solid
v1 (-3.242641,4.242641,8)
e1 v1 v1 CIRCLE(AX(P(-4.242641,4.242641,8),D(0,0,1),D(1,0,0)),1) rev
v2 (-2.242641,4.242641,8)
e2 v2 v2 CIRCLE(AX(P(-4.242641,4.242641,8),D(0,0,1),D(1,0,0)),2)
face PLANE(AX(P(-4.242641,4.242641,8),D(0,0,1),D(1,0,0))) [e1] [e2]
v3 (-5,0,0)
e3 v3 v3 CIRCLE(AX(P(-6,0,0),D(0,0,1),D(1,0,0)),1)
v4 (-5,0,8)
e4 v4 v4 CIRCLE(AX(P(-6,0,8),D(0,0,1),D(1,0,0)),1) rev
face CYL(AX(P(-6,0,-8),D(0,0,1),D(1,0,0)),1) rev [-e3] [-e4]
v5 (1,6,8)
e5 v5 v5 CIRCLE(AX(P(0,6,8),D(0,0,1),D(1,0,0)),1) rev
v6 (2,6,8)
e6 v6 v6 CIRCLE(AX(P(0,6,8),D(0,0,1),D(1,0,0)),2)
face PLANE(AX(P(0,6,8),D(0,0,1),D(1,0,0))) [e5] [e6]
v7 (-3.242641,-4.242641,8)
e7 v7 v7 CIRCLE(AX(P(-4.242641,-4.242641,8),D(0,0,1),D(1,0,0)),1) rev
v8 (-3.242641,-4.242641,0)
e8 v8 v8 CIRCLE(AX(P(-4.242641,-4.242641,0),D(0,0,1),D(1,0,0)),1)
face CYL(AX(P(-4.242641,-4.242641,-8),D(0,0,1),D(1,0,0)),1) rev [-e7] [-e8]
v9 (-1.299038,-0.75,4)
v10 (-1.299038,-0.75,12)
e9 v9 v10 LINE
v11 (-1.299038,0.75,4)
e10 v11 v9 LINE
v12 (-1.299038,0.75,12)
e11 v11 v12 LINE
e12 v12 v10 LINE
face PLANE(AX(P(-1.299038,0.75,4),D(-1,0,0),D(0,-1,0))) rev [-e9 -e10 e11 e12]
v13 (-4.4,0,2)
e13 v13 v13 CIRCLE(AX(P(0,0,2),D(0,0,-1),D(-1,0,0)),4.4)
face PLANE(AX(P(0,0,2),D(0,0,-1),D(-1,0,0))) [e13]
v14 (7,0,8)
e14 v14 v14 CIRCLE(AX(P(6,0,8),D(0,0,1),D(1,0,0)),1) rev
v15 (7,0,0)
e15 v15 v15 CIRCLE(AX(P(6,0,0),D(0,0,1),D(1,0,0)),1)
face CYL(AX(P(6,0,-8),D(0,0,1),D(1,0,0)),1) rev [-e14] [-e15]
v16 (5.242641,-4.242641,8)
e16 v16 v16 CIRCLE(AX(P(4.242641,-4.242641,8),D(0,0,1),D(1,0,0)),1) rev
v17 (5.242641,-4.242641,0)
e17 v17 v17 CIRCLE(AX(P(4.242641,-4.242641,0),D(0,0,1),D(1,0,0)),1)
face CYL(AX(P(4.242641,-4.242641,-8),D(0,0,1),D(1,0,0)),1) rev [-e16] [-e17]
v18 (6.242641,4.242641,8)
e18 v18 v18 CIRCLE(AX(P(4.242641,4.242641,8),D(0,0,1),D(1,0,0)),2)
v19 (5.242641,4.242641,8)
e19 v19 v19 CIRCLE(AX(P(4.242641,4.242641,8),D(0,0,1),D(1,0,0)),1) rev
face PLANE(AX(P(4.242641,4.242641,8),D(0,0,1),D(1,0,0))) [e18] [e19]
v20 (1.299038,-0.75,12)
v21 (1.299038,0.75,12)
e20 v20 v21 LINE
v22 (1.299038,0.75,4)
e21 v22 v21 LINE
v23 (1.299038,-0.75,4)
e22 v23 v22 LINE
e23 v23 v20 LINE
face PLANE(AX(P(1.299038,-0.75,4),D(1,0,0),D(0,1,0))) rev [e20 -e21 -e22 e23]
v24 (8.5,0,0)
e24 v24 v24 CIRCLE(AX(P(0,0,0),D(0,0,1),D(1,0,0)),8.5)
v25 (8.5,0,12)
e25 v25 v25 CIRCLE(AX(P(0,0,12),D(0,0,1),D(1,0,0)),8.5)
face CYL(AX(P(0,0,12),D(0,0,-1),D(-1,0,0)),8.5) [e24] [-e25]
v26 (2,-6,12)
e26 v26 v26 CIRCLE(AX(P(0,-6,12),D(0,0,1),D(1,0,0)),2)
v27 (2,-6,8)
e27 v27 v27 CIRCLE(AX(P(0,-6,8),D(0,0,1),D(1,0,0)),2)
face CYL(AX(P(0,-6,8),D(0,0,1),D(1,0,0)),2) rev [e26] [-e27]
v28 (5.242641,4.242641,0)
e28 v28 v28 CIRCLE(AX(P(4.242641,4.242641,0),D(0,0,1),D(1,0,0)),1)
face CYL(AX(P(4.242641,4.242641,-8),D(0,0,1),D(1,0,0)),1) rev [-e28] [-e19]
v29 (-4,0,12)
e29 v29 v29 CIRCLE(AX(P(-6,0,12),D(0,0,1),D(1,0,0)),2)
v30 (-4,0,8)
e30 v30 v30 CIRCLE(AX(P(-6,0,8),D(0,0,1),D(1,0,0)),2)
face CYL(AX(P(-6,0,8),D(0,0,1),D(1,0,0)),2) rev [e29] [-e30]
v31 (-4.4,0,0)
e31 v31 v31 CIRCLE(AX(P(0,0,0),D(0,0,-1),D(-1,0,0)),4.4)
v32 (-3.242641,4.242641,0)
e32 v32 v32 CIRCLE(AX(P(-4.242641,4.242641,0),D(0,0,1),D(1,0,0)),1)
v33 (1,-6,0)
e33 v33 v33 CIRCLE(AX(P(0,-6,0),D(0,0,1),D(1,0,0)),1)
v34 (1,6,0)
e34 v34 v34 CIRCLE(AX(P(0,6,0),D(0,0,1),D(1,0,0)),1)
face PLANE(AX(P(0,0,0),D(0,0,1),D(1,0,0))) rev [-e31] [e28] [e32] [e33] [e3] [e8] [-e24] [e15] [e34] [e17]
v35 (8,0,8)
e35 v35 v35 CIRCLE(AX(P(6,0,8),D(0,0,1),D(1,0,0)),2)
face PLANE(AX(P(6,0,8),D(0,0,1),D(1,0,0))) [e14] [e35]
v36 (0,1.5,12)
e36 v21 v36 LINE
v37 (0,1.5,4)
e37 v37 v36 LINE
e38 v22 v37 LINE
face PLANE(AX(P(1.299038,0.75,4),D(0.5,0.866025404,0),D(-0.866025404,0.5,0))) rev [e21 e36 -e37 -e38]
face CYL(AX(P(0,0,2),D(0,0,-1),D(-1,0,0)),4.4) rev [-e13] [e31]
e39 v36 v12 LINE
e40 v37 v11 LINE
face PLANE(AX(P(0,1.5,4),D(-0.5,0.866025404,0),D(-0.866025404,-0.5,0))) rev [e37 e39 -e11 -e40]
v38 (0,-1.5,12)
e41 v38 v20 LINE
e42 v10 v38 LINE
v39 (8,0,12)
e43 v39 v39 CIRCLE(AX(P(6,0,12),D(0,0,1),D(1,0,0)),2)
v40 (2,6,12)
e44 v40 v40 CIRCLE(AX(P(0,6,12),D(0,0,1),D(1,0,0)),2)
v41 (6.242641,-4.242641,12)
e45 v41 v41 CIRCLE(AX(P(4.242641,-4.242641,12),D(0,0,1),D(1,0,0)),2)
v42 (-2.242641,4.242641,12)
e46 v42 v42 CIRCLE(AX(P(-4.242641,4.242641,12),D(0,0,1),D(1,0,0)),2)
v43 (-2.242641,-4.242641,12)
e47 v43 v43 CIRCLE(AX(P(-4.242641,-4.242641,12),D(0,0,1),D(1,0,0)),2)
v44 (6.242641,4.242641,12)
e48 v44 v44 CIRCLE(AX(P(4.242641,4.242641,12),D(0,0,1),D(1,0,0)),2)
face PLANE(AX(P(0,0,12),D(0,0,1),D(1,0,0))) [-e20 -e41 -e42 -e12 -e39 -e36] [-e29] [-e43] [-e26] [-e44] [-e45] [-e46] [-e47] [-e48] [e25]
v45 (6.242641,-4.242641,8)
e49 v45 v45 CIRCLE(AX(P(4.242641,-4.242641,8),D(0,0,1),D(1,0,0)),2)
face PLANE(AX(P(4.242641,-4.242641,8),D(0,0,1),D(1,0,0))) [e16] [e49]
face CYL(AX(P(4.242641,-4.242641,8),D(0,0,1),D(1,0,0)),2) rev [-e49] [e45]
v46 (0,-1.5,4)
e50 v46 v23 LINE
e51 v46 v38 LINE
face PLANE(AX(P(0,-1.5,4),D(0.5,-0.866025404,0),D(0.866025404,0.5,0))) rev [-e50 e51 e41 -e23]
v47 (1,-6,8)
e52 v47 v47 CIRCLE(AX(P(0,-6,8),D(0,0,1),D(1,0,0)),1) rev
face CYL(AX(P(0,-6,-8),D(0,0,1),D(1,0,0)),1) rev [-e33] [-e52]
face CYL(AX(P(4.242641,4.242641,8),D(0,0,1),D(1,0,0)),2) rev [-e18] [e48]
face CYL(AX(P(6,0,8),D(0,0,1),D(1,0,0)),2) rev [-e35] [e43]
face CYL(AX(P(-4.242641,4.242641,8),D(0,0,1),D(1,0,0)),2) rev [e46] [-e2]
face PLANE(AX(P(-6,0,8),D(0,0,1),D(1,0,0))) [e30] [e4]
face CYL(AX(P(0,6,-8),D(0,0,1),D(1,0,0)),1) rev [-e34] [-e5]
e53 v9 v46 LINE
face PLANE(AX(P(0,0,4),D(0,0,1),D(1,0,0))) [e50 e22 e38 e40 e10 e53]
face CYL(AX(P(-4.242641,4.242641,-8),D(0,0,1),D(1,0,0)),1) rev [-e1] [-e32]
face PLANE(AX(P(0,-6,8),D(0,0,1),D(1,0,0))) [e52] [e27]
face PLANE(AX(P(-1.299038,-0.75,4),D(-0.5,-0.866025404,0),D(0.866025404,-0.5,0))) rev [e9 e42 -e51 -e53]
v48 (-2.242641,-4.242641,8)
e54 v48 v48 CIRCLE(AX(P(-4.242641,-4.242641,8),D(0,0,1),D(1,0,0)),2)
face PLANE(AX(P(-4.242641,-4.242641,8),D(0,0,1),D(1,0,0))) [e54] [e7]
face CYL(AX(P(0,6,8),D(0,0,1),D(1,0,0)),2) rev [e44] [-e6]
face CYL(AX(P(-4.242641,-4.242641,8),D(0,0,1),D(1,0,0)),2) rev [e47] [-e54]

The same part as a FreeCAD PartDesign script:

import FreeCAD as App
import Part
import Sketcher
Q = App.Units.Quantity

doc = App.newDocument("Part")
body = doc.addObject("PartDesign::Body", "Body")

# Sketch on XY plane
sketch1 = body.newObject("Sketcher::SketchObject", "Sketch")
sketch1.AttachmentSupport = (doc.getObject("XY_Plane"), [""])
sketch1.MapMode = "FlatFace"
sketch1.addGeometry(Part.Circle(App.Vector(0, 0, 0), App.Vector(0, 0, 1), 8), False)
sketch1.addConstraint([
    Sketcher.Constraint("Coincident", 0, 3, -1, 1),
    Sketcher.Constraint("Diameter", 0, Q("17 mm")),
])
pad1 = body.newObject("PartDesign::Pad", "Pad")
pad1.Profile = sketch1
pad1.Length = 12

# Sketch on XY plane
sketch2 = body.newObject("Sketcher::SketchObject", "Sketch001")
sketch2.AttachmentSupport = (doc.getObject("XY_Plane"), [""])
sketch2.MapMode = "FlatFace"
sketch2.AttachmentOffset = App.Placement(App.Vector(0, 0, 12), App.Rotation())
sketch2.addGeometry([
    Part.Circle(App.Vector(0, 6, 0), App.Vector(0, 0, 1), 1),  # 0
    Part.Circle(App.Vector(4.2, 4.2, 0), App.Vector(0, 0, 1), 1),  # 1
    Part.Circle(App.Vector(6, 0, 0), App.Vector(0, 0, 1), 1),  # 2
    Part.Circle(App.Vector(4.2, -4.2, 0), App.Vector(0, 0, 1), 1),  # 3
    Part.Circle(App.Vector(0, -6, 0), App.Vector(0, 0, 1), 1),  # 4
    Part.Circle(App.Vector(-4.2, -4.2, 0), App.Vector(0, 0, 1), 1),  # 5
    Part.Circle(App.Vector(-6, 0, 0), App.Vector(0, 0, 1), 1),  # 6
    Part.Circle(App.Vector(-4.2, 4.2, 0), App.Vector(0, 0, 1), 1),  # 7
], False)
sketch2.addConstraint([
    Sketcher.Constraint("Equal", 0, 1),
    Sketcher.Constraint("Equal", 1, 2),
    Sketcher.Constraint("Equal", 2, 3),
    Sketcher.Constraint("Equal", 3, 4),
    Sketcher.Constraint("Equal", 4, 5),
    Sketcher.Constraint("Equal", 5, 6),
    Sketcher.Constraint("Equal", 6, 7),
    Sketcher.Constraint("Symmetric", 0, 3, 4, 3, -1, 1),
    Sketcher.Constraint("Symmetric", 1, 3, 5, 3, -1, 1),
    Sketcher.Constraint("Symmetric", 2, 3, 6, 3, -1, 1),
    Sketcher.Constraint("Symmetric", 3, 3, 7, 3, -1, 1),
    Sketcher.Constraint("Symmetric", 3, 3, 5, 3, -2),
    Sketcher.Constraint("PointOnObject", 0, 3, -2),
    Sketcher.Constraint("PointOnObject", 2, 3, -1),
    Sketcher.Constraint("Diameter", 0, Q("2 mm")),
    Sketcher.Constraint("DistanceY", -1, 1, 0, 3, Q("6 mm")),
    Sketcher.Constraint("DistanceX", -1, 1, 2, 3, Q("6 mm")),
    Sketcher.Constraint("DistanceX", -1, 1, 1, 3, Q("4.242641 mm")),
    Sketcher.Constraint("DistanceY", -1, 1, 1, 3, Q("4.242641 mm")),
])
pocket1 = body.newObject("PartDesign::Pocket", "Pocket")
pocket1.Profile = sketch2
pocket1.Length = 20

# Sketch on XY plane
sketch3 = body.newObject("Sketcher::SketchObject", "Sketch002")
sketch3.AttachmentSupport = (doc.getObject("XY_Plane"), [""])
sketch3.MapMode = "FlatFace"
sketch3.AttachmentOffset = App.Placement(App.Vector(0, 0, 12), App.Rotation())
sketch3.addGeometry([
    Part.LineSegment(App.Vector(0, 1.5, 0), App.Vector(-1.3, 0.8, 0)),  # 0
    Part.LineSegment(App.Vector(-1.3, 0.8, 0), App.Vector(-1.3, -0.8, 0)),  # 1
    Part.LineSegment(App.Vector(-1.3, -0.8, 0), App.Vector(0, -1.5, 0)),  # 2
    Part.LineSegment(App.Vector(0, -1.5, 0), App.Vector(1.3, -0.8, 0)),  # 3
    Part.LineSegment(App.Vector(1.3, -0.8, 0), App.Vector(1.3, 0.8, 0)),  # 4
    Part.LineSegment(App.Vector(1.3, 0.8, 0), App.Vector(0, 1.5, 0)),  # 5
], False)
sketch3.addConstraint([
    Sketcher.Constraint("Coincident", 0, 2, 1, 1),
    Sketcher.Constraint("Coincident", 1, 2, 2, 1),
    Sketcher.Constraint("Coincident", 2, 2, 3, 1),
    Sketcher.Constraint("Coincident", 3, 2, 4, 1),
    Sketcher.Constraint("Coincident", 4, 2, 5, 1),
    Sketcher.Constraint("Coincident", 5, 2, 0, 1),
    Sketcher.Constraint("Vertical", 1),
    Sketcher.Constraint("Vertical", 4),
    Sketcher.Constraint("Symmetric", 0, 2, 3, 2, -1, 1),
    Sketcher.Constraint("Symmetric", 2, 2, 5, 2, -1, 1),
    Sketcher.Constraint("PointOnObject", 2, 2, -2),
    Sketcher.Constraint("Parallel", 2, 5),
    Sketcher.Constraint("Horizontal", 1, 2, 3, 2),
    Sketcher.Constraint("Angle", 0, Q("-150 deg")),
    Sketcher.Constraint("DistanceY", 1, 2, 1, 1, Q("1.5 mm")),
    Sketcher.Constraint("DistanceY", 2, 2, 5, 2, Q("3 mm")),
])
pocket2 = body.newObject("PartDesign::Pocket", "Pocket001")
pocket2.Profile = sketch3
pocket2.Length = 8

# Sketch on XY plane
sketch4 = body.newObject("Sketcher::SketchObject", "Sketch003")
sketch4.AttachmentSupport = (doc.getObject("XY_Plane"), [""])
sketch4.MapMode = "FlatFace"
sketch4.addGeometry(Part.Circle(App.Vector(0, 0, 0), App.Vector(0, 0, 1), 4.4), False)
sketch4.addConstraint([
    Sketcher.Constraint("Coincident", 0, 3, -1, 1),
    Sketcher.Constraint("Diameter", 0, Q("8.8 mm")),
])
pocket3 = body.newObject("PartDesign::Pocket", "Pocket002")
pocket3.Profile = sketch4
pocket3.Length = 2
pocket3.Reversed = True

# Sketch on XY plane
sketch5 = body.newObject("Sketcher::SketchObject", "Sketch004")
sketch5.AttachmentSupport = (doc.getObject("XY_Plane"), [""])
sketch5.MapMode = "FlatFace"
sketch5.AttachmentOffset = App.Placement(App.Vector(0, 0, 12), App.Rotation())
sketch5.addGeometry([
    Part.Circle(App.Vector(0, 6, 0), App.Vector(0, 0, 1), 2),  # 0
    Part.Circle(App.Vector(4.2, 4.2, 0), App.Vector(0, 0, 1), 2),  # 1
    Part.Circle(App.Vector(6, 0, 0), App.Vector(0, 0, 1), 2),  # 2
    Part.Circle(App.Vector(4.2, -4.2, 0), App.Vector(0, 0, 1), 2),  # 3
    Part.Circle(App.Vector(0, -6, 0), App.Vector(0, 0, 1), 2),  # 4
    Part.Circle(App.Vector(-4.2, -4.2, 0), App.Vector(0, 0, 1), 2),  # 5
    Part.Circle(App.Vector(-6, 0, 0), App.Vector(0, 0, 1), 2),  # 6
    Part.Circle(App.Vector(-4.2, 4.2, 0), App.Vector(0, 0, 1), 2),  # 7
], False)
sketch5.addConstraint([
    Sketcher.Constraint("Equal", 0, 1),
    Sketcher.Constraint("Equal", 1, 2),
    Sketcher.Constraint("Equal", 2, 3),
    Sketcher.Constraint("Equal", 3, 4),
    Sketcher.Constraint("Equal", 4, 5),
    Sketcher.Constraint("Equal", 5, 6),
    Sketcher.Constraint("Equal", 6, 7),
    Sketcher.Constraint("Symmetric", 0, 3, 4, 3, -1, 1),
    Sketcher.Constraint("Symmetric", 1, 3, 5, 3, -1, 1),
    Sketcher.Constraint("Symmetric", 2, 3, 6, 3, -1, 1),
    Sketcher.Constraint("Symmetric", 3, 3, 7, 3, -1, 1),
    Sketcher.Constraint("Symmetric", 3, 3, 5, 3, -2),
    Sketcher.Constraint("PointOnObject", 0, 3, -2),
    Sketcher.Constraint("PointOnObject", 2, 3, -1),
    Sketcher.Constraint("Diameter", 0, Q("4 mm")),
    Sketcher.Constraint("DistanceY", -1, 1, 0, 3, Q("6 mm")),
    Sketcher.Constraint("DistanceX", -1, 1, 2, 3, Q("6 mm")),
    Sketcher.Constraint("DistanceX", -1, 1, 1, 3, Q("4.242641 mm")),
    Sketcher.Constraint("DistanceY", -1, 1, 1, 3, Q("4.242641 mm")),
])
pocket4 = body.newObject("PartDesign::Pocket", "Pocket003")
pocket4.Profile = sketch5
pocket4.Length = 4

doc.recompute()
